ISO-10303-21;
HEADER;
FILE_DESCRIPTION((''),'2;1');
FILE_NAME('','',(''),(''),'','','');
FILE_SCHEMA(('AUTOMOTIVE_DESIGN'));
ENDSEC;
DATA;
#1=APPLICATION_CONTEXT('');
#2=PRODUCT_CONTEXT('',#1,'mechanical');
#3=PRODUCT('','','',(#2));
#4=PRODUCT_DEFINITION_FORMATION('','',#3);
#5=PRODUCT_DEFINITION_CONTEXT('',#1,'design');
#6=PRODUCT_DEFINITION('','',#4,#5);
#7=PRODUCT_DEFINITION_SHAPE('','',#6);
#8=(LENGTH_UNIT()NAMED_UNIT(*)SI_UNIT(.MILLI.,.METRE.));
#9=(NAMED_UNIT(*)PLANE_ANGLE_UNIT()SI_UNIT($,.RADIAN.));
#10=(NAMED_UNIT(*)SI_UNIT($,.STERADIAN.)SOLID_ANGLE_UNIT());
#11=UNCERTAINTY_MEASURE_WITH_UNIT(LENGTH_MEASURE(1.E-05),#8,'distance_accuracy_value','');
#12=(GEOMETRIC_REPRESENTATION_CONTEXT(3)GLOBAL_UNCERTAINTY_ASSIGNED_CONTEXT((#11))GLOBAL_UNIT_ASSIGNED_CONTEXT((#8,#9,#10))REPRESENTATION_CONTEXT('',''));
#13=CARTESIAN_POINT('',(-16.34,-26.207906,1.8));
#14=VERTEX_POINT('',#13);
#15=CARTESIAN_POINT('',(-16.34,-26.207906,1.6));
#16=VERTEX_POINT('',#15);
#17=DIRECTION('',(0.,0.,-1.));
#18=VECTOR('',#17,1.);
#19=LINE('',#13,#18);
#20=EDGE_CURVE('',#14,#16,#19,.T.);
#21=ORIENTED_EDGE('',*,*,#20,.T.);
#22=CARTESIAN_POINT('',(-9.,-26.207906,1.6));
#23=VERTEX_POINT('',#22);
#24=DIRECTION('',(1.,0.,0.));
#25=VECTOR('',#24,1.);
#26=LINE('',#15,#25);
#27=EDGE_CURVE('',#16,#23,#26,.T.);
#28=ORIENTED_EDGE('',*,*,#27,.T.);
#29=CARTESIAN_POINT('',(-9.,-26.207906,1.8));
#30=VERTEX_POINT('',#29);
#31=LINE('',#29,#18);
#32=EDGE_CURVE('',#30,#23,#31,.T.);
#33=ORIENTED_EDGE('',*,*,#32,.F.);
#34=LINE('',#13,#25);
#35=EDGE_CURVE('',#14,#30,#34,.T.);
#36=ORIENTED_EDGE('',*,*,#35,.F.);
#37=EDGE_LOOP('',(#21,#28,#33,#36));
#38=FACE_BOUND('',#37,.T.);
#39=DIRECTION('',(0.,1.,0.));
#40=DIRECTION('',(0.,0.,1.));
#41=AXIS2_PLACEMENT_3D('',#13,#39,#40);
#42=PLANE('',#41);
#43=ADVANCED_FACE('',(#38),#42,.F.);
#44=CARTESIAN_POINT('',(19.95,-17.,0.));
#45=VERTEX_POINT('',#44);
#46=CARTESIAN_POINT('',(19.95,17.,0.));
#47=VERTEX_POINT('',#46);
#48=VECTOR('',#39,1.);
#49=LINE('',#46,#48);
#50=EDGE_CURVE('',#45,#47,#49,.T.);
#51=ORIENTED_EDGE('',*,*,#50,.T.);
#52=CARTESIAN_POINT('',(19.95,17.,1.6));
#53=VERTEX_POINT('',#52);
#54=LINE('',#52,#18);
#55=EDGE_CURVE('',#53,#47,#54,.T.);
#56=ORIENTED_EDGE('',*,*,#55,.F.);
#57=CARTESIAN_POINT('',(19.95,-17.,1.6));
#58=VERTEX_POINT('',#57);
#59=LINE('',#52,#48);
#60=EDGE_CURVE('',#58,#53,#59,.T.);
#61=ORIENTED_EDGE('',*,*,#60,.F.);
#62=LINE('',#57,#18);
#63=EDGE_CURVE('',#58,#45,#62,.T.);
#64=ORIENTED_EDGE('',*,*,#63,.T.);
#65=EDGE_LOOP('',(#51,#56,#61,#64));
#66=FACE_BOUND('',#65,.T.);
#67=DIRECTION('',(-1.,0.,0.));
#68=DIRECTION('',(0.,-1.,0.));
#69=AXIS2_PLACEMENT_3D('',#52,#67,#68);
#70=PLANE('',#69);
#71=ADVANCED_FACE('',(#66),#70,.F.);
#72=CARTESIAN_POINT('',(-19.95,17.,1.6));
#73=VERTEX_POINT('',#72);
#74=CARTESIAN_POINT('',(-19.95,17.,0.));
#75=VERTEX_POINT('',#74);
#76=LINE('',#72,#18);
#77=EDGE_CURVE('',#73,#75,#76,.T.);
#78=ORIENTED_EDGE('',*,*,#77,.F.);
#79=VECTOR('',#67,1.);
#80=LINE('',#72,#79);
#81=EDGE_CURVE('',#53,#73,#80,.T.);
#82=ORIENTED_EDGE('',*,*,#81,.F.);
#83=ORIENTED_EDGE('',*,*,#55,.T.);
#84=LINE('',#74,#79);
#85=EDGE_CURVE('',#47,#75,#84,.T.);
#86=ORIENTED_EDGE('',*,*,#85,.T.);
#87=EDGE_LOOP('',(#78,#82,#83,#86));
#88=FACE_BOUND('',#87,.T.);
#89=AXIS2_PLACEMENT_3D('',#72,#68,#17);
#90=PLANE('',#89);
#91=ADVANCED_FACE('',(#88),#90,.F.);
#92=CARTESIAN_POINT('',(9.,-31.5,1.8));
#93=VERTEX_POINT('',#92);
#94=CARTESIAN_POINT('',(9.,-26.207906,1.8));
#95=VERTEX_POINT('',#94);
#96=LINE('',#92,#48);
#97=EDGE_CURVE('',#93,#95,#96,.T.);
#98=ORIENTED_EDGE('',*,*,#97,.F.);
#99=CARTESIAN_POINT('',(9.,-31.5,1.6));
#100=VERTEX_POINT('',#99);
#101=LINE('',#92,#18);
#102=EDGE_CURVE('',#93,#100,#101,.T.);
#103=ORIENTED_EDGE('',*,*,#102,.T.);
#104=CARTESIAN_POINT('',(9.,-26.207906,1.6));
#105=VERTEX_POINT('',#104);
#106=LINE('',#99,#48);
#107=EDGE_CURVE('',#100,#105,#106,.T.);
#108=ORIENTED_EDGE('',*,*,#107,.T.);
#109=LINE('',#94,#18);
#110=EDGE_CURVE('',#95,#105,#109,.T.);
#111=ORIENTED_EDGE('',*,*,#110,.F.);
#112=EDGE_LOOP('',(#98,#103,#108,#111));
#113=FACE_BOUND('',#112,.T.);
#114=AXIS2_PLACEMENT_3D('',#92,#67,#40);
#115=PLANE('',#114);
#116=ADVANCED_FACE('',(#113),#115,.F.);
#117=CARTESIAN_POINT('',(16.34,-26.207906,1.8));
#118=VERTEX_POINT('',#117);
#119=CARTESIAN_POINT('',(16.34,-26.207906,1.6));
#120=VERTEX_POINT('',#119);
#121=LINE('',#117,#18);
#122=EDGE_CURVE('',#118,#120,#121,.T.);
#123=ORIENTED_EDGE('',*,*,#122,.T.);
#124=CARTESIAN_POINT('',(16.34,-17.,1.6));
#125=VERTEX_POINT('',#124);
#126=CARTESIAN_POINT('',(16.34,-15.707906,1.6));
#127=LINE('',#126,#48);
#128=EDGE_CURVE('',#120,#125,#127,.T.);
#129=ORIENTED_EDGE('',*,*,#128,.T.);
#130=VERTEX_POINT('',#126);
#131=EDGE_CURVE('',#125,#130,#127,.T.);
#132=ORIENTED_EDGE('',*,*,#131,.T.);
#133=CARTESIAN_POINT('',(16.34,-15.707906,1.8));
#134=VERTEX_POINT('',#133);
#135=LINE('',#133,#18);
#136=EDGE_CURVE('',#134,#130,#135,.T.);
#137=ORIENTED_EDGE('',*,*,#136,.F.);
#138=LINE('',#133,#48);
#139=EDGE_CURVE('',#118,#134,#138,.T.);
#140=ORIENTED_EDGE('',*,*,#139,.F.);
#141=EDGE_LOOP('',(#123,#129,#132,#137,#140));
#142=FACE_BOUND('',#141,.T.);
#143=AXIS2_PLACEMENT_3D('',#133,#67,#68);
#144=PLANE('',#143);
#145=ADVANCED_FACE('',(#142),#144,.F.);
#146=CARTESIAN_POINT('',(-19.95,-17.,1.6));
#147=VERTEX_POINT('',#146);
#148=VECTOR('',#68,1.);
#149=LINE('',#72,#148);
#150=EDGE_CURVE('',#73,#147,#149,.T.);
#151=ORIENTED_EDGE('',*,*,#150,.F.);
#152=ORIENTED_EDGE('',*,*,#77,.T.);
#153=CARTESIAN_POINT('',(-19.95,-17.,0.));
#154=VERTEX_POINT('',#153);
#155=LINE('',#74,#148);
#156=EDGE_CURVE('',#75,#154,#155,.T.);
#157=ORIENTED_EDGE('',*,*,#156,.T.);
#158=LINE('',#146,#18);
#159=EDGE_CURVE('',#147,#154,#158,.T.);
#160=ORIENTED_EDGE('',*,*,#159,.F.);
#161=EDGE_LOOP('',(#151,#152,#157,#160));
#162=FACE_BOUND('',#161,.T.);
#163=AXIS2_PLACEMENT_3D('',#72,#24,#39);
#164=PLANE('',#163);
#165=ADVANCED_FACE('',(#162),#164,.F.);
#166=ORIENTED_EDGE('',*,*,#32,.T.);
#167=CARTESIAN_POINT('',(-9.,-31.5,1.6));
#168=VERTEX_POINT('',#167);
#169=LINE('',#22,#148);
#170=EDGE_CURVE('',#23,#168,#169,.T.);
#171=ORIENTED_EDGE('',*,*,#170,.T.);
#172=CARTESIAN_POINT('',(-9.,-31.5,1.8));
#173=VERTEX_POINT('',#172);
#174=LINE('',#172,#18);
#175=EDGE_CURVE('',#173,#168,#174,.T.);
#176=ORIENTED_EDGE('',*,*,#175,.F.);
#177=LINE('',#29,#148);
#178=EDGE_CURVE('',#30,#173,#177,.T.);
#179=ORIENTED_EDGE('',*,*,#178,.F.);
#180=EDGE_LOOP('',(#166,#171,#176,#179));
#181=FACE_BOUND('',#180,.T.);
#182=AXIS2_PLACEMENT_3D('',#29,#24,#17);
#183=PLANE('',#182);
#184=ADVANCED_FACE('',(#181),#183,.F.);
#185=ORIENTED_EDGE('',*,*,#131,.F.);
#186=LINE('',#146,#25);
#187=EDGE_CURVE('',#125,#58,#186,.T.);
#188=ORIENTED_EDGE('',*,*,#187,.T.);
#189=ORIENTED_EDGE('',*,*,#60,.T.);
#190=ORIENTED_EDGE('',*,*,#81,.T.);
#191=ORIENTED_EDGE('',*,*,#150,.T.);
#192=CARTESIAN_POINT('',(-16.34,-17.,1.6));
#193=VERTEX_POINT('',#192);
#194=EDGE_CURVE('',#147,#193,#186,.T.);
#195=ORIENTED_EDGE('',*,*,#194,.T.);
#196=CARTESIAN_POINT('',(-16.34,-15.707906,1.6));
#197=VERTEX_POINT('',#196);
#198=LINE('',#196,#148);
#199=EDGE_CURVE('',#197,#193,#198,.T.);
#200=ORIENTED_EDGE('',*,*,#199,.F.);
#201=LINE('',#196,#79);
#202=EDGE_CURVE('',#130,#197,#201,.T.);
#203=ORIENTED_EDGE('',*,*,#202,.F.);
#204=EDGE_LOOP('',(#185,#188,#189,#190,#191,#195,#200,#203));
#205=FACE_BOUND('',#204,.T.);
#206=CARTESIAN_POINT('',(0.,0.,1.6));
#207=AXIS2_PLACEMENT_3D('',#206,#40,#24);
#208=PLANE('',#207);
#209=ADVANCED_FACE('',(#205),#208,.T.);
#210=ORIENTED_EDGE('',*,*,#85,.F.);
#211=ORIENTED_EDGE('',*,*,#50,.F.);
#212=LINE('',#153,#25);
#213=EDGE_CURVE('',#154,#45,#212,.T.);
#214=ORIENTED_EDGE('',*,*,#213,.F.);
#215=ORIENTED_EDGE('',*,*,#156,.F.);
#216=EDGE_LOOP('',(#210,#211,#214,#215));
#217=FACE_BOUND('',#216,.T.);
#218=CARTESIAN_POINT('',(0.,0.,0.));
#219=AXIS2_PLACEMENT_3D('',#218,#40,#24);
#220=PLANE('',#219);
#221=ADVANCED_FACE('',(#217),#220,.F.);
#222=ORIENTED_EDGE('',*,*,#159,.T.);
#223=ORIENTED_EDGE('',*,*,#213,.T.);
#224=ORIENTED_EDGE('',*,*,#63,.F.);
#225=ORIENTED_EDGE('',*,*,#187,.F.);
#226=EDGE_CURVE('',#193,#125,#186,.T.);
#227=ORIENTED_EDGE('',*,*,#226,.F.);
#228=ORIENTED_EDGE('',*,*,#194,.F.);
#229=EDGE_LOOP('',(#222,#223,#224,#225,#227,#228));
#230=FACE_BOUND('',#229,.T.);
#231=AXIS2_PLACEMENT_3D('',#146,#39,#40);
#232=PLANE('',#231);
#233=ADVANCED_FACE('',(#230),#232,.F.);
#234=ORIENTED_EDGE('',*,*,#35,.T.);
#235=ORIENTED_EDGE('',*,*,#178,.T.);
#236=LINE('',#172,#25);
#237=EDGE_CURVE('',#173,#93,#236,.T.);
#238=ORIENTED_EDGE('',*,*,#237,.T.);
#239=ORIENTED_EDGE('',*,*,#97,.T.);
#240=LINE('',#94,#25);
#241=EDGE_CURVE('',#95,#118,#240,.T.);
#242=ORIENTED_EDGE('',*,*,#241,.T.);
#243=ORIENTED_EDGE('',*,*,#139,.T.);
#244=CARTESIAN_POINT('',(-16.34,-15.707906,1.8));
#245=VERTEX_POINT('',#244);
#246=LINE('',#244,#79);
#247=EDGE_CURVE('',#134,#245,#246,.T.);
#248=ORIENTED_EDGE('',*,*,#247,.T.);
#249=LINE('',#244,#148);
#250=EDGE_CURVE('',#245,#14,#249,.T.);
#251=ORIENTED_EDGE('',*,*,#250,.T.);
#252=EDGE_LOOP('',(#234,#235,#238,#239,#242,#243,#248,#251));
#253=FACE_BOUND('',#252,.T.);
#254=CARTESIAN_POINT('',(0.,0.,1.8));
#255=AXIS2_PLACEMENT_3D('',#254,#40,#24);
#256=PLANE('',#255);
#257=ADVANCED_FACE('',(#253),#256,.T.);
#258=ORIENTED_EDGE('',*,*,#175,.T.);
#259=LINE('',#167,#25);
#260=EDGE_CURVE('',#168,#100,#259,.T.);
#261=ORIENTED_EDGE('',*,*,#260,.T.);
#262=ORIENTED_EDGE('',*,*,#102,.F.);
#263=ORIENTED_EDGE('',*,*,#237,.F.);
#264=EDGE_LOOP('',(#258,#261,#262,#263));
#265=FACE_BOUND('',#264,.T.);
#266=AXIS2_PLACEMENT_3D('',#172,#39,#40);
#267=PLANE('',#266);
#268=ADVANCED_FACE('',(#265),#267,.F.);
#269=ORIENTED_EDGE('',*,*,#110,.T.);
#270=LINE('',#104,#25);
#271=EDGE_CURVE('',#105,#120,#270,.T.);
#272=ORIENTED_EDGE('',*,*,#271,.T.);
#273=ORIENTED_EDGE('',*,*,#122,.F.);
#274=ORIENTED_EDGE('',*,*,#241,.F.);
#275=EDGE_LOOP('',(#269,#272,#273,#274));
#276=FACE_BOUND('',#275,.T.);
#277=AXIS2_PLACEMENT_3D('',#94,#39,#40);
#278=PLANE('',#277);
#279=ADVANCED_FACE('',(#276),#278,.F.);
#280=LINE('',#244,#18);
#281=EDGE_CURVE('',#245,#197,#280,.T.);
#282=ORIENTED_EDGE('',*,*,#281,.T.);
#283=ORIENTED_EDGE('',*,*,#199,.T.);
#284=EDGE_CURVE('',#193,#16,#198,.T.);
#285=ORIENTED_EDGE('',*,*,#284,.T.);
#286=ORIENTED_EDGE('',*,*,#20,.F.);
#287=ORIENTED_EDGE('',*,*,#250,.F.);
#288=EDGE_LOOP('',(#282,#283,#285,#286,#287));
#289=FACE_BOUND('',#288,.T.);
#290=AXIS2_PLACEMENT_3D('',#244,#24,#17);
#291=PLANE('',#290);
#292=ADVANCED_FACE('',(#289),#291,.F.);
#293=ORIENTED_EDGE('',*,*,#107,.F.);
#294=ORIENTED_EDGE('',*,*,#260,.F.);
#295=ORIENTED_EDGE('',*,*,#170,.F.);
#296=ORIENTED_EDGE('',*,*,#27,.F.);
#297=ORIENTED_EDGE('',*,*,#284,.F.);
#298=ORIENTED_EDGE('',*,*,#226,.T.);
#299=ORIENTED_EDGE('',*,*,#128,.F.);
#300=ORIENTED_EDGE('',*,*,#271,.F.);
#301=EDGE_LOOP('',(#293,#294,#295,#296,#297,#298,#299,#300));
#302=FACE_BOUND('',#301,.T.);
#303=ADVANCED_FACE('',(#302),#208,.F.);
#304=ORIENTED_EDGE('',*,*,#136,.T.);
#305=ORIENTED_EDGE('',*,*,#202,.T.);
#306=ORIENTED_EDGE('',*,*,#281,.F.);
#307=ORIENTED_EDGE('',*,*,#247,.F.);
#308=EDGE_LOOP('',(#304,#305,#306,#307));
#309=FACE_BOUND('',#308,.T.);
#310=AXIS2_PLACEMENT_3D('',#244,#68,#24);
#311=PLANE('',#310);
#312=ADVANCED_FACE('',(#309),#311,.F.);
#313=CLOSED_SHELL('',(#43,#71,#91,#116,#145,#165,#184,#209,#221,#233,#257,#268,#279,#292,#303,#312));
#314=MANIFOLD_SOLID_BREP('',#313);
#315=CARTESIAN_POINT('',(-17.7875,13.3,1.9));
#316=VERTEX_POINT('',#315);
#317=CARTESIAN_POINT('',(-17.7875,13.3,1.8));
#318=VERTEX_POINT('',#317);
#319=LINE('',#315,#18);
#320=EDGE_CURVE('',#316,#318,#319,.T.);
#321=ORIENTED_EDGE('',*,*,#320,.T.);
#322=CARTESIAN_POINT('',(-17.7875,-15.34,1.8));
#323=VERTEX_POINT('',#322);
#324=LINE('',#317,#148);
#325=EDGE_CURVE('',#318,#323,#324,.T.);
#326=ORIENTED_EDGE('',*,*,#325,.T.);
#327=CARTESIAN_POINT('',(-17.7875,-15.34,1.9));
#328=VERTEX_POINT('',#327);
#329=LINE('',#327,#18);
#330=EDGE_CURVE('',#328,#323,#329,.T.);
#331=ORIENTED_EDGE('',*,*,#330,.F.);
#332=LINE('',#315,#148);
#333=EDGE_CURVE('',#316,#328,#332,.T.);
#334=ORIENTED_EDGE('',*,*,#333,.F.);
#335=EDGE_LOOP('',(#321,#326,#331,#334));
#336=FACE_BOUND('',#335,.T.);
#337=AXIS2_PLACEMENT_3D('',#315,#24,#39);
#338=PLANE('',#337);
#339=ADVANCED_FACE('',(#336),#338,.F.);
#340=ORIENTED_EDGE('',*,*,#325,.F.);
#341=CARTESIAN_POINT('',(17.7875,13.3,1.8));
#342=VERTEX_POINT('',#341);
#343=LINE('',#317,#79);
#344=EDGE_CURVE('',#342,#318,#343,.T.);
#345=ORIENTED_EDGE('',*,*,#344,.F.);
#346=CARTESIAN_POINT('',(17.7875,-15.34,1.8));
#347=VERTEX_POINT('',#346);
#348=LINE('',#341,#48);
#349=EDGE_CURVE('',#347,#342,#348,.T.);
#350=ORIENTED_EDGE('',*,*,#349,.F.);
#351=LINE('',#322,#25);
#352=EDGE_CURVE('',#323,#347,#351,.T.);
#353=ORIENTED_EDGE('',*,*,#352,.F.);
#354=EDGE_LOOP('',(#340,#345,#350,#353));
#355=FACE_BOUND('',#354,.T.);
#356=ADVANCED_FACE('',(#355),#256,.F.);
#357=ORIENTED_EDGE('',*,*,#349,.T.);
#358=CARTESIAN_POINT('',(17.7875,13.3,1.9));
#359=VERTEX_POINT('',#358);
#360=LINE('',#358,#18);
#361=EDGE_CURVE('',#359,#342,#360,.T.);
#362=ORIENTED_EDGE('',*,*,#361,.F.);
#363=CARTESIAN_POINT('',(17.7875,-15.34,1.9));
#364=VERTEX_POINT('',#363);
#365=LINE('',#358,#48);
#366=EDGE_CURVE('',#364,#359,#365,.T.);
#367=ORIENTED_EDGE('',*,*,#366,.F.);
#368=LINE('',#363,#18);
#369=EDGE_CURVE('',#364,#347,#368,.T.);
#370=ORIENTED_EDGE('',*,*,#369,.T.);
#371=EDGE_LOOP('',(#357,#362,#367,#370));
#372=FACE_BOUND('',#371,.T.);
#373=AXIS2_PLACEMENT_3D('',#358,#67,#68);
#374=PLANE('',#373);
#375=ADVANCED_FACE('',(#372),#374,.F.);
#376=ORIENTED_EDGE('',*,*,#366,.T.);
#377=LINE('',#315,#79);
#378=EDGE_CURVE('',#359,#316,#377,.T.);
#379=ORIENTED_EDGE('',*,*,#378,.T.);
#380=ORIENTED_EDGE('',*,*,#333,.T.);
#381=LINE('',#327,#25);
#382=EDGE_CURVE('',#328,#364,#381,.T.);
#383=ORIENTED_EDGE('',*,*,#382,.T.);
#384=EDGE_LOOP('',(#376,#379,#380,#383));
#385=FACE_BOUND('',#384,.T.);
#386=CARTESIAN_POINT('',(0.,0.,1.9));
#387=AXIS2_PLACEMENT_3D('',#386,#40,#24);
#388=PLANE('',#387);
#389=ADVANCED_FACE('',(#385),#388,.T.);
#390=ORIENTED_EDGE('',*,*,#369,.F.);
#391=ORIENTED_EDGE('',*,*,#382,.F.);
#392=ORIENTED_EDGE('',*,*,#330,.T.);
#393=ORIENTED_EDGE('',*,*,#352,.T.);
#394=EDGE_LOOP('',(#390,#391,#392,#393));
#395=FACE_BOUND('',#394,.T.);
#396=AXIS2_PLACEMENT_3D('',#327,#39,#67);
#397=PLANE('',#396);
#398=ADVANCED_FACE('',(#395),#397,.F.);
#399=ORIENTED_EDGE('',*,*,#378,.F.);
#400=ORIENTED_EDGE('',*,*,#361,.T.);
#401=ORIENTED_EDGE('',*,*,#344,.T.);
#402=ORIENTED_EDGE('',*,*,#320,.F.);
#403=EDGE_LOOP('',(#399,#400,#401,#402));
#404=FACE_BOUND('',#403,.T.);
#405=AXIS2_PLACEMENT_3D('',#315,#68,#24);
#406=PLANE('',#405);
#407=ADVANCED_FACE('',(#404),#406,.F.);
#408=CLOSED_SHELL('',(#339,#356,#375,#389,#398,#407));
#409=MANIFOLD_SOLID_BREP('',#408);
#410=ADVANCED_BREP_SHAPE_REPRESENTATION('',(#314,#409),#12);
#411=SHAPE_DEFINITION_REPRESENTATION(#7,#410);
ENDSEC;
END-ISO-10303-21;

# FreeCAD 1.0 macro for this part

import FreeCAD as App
import Part
import Sketcher
Q = App.Units.Quantity


def add_polygon(sketch, points):
    """Adds a closed chain of lines whose ends are joined by coincident constraints."""
    first, n = sketch.GeometryCount, len(points)
    for a, b in zip(points, points[1:] + points[:1]):
        sketch.addGeometry(Part.LineSegment(App.Vector(*a, 0), App.Vector(*b, 0)), False)
    for i in range(n):
        sketch.addConstraint(Sketcher.Constraint("Coincident", first + i, 2, first + (i + 1) % n, 1))

doc = App.newDocument("Part")
body = doc.addObject("PartDesign::Body", "Body")

sketch1 = body.newObject("Sketcher::SketchObject", "Sketch")
sketch1.AttachmentSupport = (doc.getObject("XY_Plane"), [""])
sketch1.MapMode = "FlatFace"
add_polygon(sketch1, [(-19.95, 17), (-19.95, -17), (19.95, -17), (19.95, 17)])
sketch1.addConstraint([
    Sketcher.Constraint("Vertical", 0),
    Sketcher.Constraint("Horizontal", 1),
    Sketcher.Constraint("Vertical", 2),
    Sketcher.Constraint("Horizontal", 3),
    Sketcher.Constraint("Symmetric", 0, 2, 2, 2, -1, 1),
    Sketcher.Constraint("DistanceY", 0, 2, 0, 1, Q("34 mm")),
    Sketcher.Constraint("DistanceX", 1, 1, 1, 2, Q("39.9 mm")),
])
pad1 = body.newObject("PartDesign::Pad", "Pad")
pad1.Profile = sketch1
pad1.Length = 1.6

sketch2 = body.newObject("Sketcher::SketchObject", "Sketch001")
sketch2.AttachmentSupport = (doc.getObject("XY_Plane"), [""])
sketch2.MapMode = "FlatFace"
sketch2.AttachmentOffset = App.Placement(App.Vector(0, 0, 1.6), App.Rotation())
add_polygon(sketch2, [(16.34, -15.707906), (-16.34, -15.707906), (-16.34, -26.207906), (-9, -26.207906), (-9, -31.5), (9, -31.5), (9, -26.207906), (16.34, -26.207906)])
sketch2.addConstraint([
    Sketcher.Constraint("Horizontal", 0),
    Sketcher.Constraint("Vertical", 1),
    Sketcher.Constraint("Horizontal", 2),
    Sketcher.Constraint("Vertical", 3),
    Sketcher.Constraint("Horizontal", 4),
    Sketcher.Constraint("Vertical", 5),
    Sketcher.Constraint("Horizontal", 6),
    Sketcher.Constraint("Vertical", 7),
    Sketcher.Constraint("Symmetric", 2, 2, 5, 2, -2),
    Sketcher.Constraint("Equal", 2, 6),
    Sketcher.Constraint("DistanceX", 4, 1, 4, 2, Q("18 mm")),
    Sketcher.Constraint("DistanceY", 1, 2, 1, 1, Q("10.5 mm")),
    Sketcher.Constraint("DistanceX", 0, 2, 0, 1, Q("32.68 mm")),
    Sketcher.Constraint("DistanceY", 3, 2, -1, 1, Q("31.5 mm")),
    Sketcher.Constraint("DistanceY", 3, 2, 3, 1, Q("5.292094 mm")),
])
pad2 = body.newObject("PartDesign::Pad", "Pad001")
pad2.Profile = sketch2
pad2.Length = 0.2
body2 = doc.addObject("PartDesign::Body", "Body001")

sketch3 = body2.newObject("Sketcher::SketchObject", "Sketch002")
sketch3.AttachmentSupport = (doc.getObject("XY_Plane001"), [""])
sketch3.MapMode = "FlatFace"
sketch3.AttachmentOffset = App.Placement(App.Vector(0, 0, 1.8), App.Rotation())
add_polygon(sketch3, [(-17.7875, 13.3), (-17.7875, -15.34), (17.7875, -15.34), (17.7875, 13.3)])
sketch3.addConstraint([
    Sketcher.Constraint("Vertical", 0),
    Sketcher.Constraint("Horizontal", 1),
    Sketcher.Constraint("Vertical", 2),
    Sketcher.Constraint("Horizontal", 3),
    Sketcher.Constraint("DistanceY", 0, 2, 0, 1, Q("28.64 mm")),
    Sketcher.Constraint("DistanceY", -1, 1, 2, 2, Q("13.3 mm")),
    Sketcher.Constraint("DistanceX", 1, 1, 1, 2, Q("35.575 mm")),
    Sketcher.Constraint("DistanceX", 0, 2, -1, 1, Q("17.7875 mm")),
])
pad3 = body2.newObject("PartDesign::Pad", "Pad002")
pad3.Profile = sketch3
pad3.Length = 0.1

doc.recompute()
